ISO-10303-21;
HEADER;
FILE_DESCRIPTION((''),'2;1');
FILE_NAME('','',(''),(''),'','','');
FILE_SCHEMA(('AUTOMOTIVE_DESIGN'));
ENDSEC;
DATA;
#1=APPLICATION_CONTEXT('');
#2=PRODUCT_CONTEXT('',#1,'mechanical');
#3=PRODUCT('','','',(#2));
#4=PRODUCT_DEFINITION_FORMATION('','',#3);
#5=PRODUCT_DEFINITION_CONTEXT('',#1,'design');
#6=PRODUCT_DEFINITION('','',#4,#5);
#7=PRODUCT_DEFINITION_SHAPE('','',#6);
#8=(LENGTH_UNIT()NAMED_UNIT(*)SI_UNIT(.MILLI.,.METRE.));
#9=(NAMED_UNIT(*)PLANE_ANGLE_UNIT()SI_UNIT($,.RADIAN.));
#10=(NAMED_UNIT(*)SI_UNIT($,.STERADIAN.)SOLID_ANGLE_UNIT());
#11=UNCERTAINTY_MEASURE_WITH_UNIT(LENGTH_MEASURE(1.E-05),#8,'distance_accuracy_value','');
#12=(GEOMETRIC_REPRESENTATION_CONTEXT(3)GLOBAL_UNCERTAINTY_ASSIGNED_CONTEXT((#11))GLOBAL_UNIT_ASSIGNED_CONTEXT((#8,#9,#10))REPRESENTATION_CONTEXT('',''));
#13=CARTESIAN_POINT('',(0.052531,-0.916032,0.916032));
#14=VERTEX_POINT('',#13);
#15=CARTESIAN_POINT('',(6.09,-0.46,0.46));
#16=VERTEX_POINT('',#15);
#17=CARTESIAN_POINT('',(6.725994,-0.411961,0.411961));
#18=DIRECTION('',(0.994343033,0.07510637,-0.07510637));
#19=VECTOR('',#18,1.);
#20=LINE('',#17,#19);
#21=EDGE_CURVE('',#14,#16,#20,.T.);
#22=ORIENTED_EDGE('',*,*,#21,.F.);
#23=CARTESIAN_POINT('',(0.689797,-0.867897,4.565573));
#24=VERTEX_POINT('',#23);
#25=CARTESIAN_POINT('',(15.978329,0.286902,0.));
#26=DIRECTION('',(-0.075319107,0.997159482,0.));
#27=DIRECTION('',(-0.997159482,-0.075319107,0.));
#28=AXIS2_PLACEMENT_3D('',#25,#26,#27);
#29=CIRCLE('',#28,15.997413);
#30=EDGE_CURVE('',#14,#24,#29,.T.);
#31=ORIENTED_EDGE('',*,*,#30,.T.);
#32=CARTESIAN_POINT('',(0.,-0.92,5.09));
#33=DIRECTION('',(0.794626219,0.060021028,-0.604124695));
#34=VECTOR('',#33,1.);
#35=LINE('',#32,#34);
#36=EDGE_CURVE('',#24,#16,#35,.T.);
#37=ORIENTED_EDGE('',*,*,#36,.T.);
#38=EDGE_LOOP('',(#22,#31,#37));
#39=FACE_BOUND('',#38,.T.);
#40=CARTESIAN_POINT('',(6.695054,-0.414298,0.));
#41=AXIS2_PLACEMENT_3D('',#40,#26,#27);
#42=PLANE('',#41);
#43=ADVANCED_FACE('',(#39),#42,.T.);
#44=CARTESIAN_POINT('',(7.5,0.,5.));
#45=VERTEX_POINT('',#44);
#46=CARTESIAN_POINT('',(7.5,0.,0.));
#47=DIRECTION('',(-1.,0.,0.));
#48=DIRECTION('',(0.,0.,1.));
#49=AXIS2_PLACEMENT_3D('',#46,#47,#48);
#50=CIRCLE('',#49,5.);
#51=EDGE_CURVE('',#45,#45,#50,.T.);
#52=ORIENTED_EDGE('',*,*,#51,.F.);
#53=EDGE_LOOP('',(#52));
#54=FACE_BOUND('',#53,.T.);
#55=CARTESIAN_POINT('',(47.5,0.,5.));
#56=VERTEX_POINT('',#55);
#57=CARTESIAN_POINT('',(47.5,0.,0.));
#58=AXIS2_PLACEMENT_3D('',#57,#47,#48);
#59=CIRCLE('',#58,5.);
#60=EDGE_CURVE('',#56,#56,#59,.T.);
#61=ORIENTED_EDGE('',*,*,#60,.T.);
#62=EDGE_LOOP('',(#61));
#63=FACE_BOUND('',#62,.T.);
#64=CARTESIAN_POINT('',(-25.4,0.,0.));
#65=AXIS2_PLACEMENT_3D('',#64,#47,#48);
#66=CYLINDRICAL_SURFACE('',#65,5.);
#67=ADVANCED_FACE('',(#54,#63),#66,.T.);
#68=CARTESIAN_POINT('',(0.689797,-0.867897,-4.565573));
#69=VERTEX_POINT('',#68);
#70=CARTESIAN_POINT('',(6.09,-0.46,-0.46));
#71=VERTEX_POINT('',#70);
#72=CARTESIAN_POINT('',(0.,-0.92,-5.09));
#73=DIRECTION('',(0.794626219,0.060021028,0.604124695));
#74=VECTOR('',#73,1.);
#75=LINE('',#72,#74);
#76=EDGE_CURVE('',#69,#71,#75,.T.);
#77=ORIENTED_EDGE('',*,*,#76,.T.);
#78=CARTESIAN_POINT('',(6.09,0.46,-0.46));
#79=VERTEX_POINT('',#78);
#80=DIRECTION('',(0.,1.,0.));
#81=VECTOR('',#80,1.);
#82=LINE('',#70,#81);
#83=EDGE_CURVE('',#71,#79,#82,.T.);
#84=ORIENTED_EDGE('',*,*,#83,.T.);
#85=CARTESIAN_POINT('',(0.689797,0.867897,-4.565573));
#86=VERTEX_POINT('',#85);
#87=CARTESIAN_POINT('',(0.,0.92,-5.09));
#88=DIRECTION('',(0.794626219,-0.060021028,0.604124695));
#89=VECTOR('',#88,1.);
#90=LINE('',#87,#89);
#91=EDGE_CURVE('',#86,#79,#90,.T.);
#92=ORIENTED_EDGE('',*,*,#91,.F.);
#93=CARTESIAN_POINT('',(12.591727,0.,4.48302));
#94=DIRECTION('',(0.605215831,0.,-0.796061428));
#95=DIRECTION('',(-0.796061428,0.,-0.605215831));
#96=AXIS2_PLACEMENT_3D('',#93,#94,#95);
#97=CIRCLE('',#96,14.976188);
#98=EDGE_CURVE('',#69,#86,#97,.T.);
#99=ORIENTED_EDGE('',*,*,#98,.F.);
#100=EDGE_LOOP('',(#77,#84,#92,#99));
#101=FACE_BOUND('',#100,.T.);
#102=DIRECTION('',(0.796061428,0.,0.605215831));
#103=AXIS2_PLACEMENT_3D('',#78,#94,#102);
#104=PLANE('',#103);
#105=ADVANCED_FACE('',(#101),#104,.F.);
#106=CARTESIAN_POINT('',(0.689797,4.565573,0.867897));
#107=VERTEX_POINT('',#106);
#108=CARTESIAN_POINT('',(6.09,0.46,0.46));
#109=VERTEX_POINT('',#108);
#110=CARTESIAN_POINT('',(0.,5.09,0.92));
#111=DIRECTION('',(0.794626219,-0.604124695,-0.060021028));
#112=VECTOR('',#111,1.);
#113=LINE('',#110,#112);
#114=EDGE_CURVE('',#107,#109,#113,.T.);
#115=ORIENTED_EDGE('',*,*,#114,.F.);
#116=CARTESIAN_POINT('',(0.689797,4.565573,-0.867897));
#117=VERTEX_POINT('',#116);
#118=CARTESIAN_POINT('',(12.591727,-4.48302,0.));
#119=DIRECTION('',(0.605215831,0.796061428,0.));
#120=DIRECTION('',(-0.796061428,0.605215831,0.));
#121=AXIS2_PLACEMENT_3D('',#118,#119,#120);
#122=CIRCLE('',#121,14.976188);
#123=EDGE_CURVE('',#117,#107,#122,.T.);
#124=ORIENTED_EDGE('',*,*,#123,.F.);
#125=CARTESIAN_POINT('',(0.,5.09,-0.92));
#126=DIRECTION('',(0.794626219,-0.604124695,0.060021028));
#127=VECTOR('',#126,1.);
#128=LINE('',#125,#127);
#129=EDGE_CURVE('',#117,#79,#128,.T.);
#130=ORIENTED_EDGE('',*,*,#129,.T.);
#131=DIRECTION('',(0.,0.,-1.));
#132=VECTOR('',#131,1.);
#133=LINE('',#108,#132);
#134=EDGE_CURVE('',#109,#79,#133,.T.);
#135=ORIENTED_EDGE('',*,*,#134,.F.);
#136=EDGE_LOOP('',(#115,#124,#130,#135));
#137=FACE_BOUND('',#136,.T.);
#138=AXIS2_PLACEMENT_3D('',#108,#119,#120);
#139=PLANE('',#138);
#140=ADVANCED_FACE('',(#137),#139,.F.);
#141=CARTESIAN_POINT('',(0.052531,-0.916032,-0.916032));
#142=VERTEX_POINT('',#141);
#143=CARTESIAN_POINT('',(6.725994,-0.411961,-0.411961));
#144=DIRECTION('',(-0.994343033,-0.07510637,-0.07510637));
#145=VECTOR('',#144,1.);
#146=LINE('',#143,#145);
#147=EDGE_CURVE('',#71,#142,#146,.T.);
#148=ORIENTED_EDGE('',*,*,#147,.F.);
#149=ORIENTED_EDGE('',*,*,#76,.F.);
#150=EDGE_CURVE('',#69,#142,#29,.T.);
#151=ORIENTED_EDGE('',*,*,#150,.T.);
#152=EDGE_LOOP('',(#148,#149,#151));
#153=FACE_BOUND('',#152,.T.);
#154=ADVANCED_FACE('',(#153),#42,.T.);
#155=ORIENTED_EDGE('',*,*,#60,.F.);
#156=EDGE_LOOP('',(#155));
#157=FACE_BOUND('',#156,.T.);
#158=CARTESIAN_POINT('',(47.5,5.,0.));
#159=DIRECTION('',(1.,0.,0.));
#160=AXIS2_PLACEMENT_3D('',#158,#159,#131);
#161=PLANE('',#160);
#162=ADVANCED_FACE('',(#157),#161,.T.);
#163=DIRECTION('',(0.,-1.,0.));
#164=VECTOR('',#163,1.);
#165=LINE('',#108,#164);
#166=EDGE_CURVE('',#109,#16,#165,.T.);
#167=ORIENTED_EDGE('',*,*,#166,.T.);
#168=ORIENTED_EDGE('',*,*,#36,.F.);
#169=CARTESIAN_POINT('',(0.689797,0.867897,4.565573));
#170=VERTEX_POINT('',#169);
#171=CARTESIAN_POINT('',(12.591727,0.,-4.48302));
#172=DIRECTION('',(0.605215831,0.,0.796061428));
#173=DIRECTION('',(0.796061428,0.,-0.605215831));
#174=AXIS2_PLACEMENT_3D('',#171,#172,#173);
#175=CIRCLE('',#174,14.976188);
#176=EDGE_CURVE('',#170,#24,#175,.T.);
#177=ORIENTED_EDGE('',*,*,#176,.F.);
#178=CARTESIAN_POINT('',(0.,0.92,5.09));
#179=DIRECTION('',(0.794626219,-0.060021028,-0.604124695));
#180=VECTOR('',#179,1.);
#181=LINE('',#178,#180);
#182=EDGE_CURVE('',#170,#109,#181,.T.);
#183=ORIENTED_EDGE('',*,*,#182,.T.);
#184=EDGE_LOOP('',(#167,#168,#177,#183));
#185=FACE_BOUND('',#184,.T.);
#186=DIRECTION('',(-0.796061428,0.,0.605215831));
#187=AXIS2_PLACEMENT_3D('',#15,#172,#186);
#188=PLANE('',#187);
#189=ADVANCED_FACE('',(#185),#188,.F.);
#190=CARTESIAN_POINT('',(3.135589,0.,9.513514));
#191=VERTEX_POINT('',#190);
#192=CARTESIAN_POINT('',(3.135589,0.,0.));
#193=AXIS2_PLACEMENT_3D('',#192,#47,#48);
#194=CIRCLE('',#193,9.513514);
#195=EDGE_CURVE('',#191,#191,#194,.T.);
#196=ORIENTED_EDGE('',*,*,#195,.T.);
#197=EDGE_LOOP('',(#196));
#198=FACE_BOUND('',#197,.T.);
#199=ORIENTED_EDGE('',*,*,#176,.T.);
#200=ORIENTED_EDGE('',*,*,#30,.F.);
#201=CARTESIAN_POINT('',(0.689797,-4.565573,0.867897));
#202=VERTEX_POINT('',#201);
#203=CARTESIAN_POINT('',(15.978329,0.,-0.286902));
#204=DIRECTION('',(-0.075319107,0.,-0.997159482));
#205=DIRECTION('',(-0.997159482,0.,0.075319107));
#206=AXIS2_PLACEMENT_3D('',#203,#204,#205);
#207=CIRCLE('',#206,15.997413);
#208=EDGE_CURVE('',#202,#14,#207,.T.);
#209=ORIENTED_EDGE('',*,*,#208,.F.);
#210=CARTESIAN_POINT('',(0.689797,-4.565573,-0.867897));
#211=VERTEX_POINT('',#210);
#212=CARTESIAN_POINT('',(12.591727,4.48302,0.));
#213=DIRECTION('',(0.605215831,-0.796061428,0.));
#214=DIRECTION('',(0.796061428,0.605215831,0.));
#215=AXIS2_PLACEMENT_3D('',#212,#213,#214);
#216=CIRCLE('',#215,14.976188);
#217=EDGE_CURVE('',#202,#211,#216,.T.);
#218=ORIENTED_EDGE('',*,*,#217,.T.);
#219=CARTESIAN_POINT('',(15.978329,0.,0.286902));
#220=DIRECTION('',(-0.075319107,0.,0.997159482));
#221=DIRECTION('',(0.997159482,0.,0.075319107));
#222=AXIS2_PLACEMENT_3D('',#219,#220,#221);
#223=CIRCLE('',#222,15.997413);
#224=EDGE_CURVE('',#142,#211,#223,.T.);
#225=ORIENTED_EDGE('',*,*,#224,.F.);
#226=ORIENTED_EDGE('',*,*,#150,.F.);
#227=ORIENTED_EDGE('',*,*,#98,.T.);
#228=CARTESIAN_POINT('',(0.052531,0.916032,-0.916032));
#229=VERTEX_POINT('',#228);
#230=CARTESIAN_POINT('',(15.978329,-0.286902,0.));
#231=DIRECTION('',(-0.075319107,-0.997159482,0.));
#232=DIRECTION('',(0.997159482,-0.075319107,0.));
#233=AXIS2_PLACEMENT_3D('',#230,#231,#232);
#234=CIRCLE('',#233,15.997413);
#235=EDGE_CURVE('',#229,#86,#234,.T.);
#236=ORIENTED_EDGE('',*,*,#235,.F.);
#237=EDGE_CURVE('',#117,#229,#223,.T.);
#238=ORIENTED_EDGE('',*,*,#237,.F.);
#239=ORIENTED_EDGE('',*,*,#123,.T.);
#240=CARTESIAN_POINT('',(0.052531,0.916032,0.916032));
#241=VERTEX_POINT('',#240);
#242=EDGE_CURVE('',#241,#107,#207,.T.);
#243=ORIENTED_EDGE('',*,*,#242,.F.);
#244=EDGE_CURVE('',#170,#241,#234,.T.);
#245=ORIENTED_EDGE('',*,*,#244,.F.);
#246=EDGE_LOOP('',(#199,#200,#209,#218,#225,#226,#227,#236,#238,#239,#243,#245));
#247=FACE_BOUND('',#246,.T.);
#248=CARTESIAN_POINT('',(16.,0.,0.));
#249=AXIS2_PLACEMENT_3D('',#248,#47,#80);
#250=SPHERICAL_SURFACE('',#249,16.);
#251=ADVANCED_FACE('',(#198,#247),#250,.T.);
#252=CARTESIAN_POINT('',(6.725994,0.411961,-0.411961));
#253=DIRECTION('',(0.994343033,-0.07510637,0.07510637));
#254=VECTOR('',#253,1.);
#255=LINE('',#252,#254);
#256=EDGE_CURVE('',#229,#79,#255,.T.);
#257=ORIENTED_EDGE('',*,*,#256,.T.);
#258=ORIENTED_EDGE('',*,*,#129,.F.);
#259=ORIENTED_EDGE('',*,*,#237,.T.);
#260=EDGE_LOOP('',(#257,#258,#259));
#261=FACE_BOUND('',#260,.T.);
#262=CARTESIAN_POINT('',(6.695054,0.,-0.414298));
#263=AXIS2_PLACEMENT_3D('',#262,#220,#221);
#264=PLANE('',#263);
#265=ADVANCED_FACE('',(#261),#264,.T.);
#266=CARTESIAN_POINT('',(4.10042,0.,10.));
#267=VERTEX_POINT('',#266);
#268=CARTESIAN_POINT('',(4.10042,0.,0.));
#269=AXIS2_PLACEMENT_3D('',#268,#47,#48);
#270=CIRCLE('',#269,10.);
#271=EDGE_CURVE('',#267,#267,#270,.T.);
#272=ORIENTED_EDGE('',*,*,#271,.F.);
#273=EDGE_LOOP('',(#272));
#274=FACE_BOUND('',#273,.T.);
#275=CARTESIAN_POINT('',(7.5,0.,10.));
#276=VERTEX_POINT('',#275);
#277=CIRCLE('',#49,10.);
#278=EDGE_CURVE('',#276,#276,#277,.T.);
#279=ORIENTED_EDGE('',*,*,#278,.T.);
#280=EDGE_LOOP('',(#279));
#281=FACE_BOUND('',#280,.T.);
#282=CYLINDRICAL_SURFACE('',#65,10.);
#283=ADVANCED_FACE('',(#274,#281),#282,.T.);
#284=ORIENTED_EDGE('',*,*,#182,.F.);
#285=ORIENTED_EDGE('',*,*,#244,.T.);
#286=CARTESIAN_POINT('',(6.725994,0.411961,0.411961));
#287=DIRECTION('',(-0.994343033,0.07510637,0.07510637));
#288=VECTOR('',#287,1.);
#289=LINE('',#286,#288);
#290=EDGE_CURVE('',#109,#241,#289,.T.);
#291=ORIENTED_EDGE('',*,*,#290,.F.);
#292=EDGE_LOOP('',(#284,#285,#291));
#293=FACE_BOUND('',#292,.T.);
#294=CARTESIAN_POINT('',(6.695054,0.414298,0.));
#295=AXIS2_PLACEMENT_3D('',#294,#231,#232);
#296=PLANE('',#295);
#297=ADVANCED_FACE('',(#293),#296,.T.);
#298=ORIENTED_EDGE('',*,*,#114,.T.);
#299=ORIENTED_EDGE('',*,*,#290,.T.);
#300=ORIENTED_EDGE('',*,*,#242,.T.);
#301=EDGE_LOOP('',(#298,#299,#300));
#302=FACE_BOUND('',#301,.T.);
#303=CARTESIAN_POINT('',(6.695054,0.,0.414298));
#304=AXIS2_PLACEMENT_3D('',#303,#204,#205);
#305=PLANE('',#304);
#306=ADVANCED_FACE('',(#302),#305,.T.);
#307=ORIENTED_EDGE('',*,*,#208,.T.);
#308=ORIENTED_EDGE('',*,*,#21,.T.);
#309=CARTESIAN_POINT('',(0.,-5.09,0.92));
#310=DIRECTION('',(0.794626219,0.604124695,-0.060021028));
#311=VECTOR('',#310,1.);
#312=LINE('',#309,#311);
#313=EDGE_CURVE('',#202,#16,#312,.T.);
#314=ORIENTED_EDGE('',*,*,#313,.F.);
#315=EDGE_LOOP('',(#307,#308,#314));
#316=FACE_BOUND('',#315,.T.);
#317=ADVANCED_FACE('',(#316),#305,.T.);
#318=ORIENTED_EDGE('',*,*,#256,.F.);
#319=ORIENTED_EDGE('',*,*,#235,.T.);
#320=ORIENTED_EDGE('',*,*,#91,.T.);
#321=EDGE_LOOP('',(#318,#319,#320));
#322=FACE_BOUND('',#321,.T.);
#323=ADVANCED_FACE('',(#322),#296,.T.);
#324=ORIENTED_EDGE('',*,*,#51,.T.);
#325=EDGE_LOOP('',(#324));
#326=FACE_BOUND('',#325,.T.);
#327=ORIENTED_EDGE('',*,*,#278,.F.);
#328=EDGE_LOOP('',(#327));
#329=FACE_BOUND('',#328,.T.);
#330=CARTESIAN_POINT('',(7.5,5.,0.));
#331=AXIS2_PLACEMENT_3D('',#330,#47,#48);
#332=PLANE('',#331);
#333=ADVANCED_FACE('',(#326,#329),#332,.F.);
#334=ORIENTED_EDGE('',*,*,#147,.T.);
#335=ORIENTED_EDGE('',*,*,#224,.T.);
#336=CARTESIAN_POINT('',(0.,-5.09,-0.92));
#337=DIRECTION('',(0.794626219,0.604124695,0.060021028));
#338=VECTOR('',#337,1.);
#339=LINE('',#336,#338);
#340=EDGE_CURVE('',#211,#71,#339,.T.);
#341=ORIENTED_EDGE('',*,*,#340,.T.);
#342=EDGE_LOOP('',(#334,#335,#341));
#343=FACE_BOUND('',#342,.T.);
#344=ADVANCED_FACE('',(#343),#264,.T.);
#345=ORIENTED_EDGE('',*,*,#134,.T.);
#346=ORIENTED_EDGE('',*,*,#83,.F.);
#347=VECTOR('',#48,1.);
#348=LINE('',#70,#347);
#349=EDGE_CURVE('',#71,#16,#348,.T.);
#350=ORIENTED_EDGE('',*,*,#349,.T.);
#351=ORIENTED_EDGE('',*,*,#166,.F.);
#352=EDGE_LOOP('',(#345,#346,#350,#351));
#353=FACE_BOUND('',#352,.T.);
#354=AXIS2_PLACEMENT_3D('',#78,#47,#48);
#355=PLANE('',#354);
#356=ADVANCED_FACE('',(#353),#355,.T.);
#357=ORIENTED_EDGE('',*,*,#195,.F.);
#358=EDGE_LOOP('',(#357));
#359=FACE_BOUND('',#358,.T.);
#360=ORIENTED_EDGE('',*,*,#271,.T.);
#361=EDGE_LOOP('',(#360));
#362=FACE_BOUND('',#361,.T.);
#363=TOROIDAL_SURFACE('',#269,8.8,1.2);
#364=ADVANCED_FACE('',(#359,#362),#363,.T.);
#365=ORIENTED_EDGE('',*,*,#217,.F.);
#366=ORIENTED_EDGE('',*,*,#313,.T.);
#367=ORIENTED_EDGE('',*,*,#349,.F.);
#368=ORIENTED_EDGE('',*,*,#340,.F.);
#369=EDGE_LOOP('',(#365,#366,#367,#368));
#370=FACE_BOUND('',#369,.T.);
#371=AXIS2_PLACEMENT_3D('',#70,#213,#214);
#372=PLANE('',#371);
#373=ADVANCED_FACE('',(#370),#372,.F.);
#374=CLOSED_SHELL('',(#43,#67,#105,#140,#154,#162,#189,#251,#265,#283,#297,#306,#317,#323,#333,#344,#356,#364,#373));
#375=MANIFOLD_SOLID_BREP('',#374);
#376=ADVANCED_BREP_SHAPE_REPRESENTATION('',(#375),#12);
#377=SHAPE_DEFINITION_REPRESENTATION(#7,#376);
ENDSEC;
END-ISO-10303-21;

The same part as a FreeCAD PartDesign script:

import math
import FreeCAD as App
import Part
import Sketcher
from FreeCAD import Vector
Q = App.Units.Quantity


def add_polygon(sketch, points):
    """Adds a closed chain of lines whose ends are joined by coincident constraints."""
    first, n = sketch.GeometryCount, len(points)
    for a, b in zip(points, points[1:] + points[:1]):
        sketch.addGeometry(Part.LineSegment(App.Vector(*a, 0), App.Vector(*b, 0)), False)
    for i in range(n):
        sketch.addConstraint(Sketcher.Constraint("Coincident", first + i, 2, first + (i + 1) % n, 1))

doc = App.newDocument("Part")
params = doc.addObject("Spreadsheet::Sheet", "Params")
for row, (alias, value) in enumerate([
    ("sketch1_radius", "16 mm"),
    ("sketch1_radius2", "1.2 mm"),
    ("sketch1_width", "40 mm"),
    ("sketch1_height", "5 mm"),
    ("sketch1_width2", "47.5 mm"),
    ("revolution_angle", "360 deg"),
    ("sketch2_width", "10.18 mm"),
    ("sketch2_height", "1.84 mm"),
    ("sketch3_width", "0.92 mm"),
], start=1):
    params.set(f"A{row}", alias)
    params.set(f"B{row}", "=" + value)
    params.setAlias(f"B{row}", alias)

body = doc.addObject("PartDesign::Body", "Body")

# Sketch on XY plane
sketch1 = doc.addObject("Sketcher::SketchObject", "Sketch")
body.addObject(sketch1)
sketch1.AttachmentSupport = (doc.XY_Plane, [""])
sketch1.MapMode = "FlatFace"
sketch1.addGeometry([
    Part.LineSegment(Vector(7.5, 5, 0), Vector(7.5, 10, 0)),  # 0
    Part.LineSegment(Vector(7.5, 10, 0), Vector(4.1, 10, 0)),  # 1
    Part.ArcOfCircle(Part.Circle(Vector(4.1, 8.8, 0), Vector(0, 0, 1), 1.2), math.radians(90), math.radians(144)),  # 2
    Part.ArcOfCircle(Part.Circle(Vector(16, 0, 0), Vector(0, 0, 1), 16), math.radians(144), math.radians(180)),  # 3
    Part.LineSegment(Vector(0, 0, 0), Vector(47.5, 0, 0)),  # 4
    Part.LineSegment(Vector(47.5, 0, 0), Vector(47.5, 5, 0)),  # 5
    Part.LineSegment(Vector(47.5, 5, 0), Vector(7.5, 5, 0)),  # 6
], False)
sketch1.addConstraint([
    Sketcher.Constraint("Coincident", 0, 2, 1, 1),
    Sketcher.Constraint("Tangent", 1, 2, 2, 1),
    Sketcher.Constraint("Tangent", 2, 2, 3, 1),
    Sketcher.Constraint("Coincident", 3, 2, 4, 1),
    Sketcher.Constraint("Coincident", 4, 2, 5, 1),
    Sketcher.Constraint("Coincident", 5, 2, 6, 1),
    Sketcher.Constraint("Coincident", 6, 2, 0, 1),
    Sketcher.Constraint("Vertical", 0),
    Sketcher.Constraint("Horizontal", 1),
    Sketcher.Constraint("Horizontal", 4),
    Sketcher.Constraint("Vertical", 5),
    Sketcher.Constraint("Horizontal", 6),
    Sketcher.Constraint("Coincident", 3, 2, -1, 1),
    Sketcher.Constraint("PointOnObject", 3, 3, -1),
    Sketcher.Constraint("Equal", 0, 5),
    Sketcher.Constraint("Radius", 3, Q("16 mm")),
    Sketcher.Constraint("Radius", 2, Q("1.2 mm")),
    Sketcher.Constraint("DistanceX", 6, 2, 6, 1, Q("40 mm")),
    Sketcher.Constraint("DistanceY", 0, 1, 0, 2, Q("5 mm")),
    Sketcher.Constraint("DistanceX", 4, 1, 4, 2, Q("47.5 mm")),
])
sketch1.setExpression("Constraints[15]", "Params.sketch1_radius")
sketch1.setExpression("Constraints[16]", "Params.sketch1_radius2")
sketch1.setExpression("Constraints[17]", "Params.sketch1_width")
sketch1.setExpression("Constraints[18]", "Params.sketch1_height")
sketch1.setExpression("Constraints[19]", "Params.sketch1_width2")
revolution = doc.addObject("PartDesign::Revolution", "Revolution")
body.addObject(revolution)
revolution.Profile = sketch1
revolution.ReferenceAxis = (sketch1, ["H_Axis"])
revolution.setExpression("Angle", "Params.revolution_angle")

# Sketch on YZ plane
sketch2 = doc.addObject("Sketcher::SketchObject", "Sketch001")
body.addObject(sketch2)
sketch2.AttachmentSupport = (doc.YZ_Plane, [""])
sketch2.MapMode = "FlatFace"
add_polygon(sketch2, [(5.1, 0.9), (-5.1, 0.9), (-5.1, -0.9), (5.1, -0.9)])  # lines 0-3
sketch2.addConstraint([
    Sketcher.Constraint("Horizontal", 0),
    Sketcher.Constraint("Vertical", 1),
    Sketcher.Constraint("Horizontal", 2),
    Sketcher.Constraint("Vertical", 3),
    Sketcher.Constraint("Symmetric", 0, 2, 2, 2, -1, 1),
    Sketcher.Constraint("DistanceX", 0, 2, 0, 1, Q("10.18 mm")),
    Sketcher.Constraint("DistanceY", 1, 2, 1, 1, Q("1.84 mm")),
])
sketch2.setExpression("Constraints[9]", "Params.sketch2_width")
sketch2.setExpression("Constraints[10]", "Params.sketch2_height")

# Sketch on YZ plane
sketch3 = doc.addObject("Sketcher::SketchObject", "Sketch002")
body.addObject(sketch3)
sketch3.AttachmentSupport = (doc.YZ_Plane, [""])
sketch3.MapMode = "FlatFace"
sketch3.AttachmentOffset = App.Placement(Vector(0, 0, 6.09), App.Rotation())
add_polygon(sketch3, [(0.5, 0.5), (-0.5, 0.5), (-0.5, -0.5), (0.5, -0.5)])  # lines 0-3
sketch3.addConstraint([
    Sketcher.Constraint("Horizontal", 0),
    Sketcher.Constraint("Vertical", 1),
    Sketcher.Constraint("Horizontal", 2),
    Sketcher.Constraint("Vertical", 3),
    Sketcher.Constraint("Symmetric", 0, 2, 2, 2, -1, 1),
    Sketcher.Constraint("Equal", 2, 1),
    Sketcher.Constraint("DistanceX", 0, 2, 0, 1, Q("0.92 mm")),
])
sketch3.setExpression("Constraints[10]", "Params.sketch3_width")

subtractiveloft = doc.addObject("PartDesign::SubtractiveLoft", "SubtractiveLoft")
body.addObject(subtractiveloft)
subtractiveloft.Profile = sketch2
subtractiveloft.Sections = [sketch3]
doc.recompute()

polarpattern = doc.addObject("PartDesign::PolarPattern", "PolarPattern")
body.addObject(polarpattern)
polarpattern.Originals = [subtractiveloft]
polarpattern.Axis = (doc.X_Axis, [""])
polarpattern.Angle = 90
polarpattern.Occurrences = 2
body.Tip = polarpattern

doc.recompute()
